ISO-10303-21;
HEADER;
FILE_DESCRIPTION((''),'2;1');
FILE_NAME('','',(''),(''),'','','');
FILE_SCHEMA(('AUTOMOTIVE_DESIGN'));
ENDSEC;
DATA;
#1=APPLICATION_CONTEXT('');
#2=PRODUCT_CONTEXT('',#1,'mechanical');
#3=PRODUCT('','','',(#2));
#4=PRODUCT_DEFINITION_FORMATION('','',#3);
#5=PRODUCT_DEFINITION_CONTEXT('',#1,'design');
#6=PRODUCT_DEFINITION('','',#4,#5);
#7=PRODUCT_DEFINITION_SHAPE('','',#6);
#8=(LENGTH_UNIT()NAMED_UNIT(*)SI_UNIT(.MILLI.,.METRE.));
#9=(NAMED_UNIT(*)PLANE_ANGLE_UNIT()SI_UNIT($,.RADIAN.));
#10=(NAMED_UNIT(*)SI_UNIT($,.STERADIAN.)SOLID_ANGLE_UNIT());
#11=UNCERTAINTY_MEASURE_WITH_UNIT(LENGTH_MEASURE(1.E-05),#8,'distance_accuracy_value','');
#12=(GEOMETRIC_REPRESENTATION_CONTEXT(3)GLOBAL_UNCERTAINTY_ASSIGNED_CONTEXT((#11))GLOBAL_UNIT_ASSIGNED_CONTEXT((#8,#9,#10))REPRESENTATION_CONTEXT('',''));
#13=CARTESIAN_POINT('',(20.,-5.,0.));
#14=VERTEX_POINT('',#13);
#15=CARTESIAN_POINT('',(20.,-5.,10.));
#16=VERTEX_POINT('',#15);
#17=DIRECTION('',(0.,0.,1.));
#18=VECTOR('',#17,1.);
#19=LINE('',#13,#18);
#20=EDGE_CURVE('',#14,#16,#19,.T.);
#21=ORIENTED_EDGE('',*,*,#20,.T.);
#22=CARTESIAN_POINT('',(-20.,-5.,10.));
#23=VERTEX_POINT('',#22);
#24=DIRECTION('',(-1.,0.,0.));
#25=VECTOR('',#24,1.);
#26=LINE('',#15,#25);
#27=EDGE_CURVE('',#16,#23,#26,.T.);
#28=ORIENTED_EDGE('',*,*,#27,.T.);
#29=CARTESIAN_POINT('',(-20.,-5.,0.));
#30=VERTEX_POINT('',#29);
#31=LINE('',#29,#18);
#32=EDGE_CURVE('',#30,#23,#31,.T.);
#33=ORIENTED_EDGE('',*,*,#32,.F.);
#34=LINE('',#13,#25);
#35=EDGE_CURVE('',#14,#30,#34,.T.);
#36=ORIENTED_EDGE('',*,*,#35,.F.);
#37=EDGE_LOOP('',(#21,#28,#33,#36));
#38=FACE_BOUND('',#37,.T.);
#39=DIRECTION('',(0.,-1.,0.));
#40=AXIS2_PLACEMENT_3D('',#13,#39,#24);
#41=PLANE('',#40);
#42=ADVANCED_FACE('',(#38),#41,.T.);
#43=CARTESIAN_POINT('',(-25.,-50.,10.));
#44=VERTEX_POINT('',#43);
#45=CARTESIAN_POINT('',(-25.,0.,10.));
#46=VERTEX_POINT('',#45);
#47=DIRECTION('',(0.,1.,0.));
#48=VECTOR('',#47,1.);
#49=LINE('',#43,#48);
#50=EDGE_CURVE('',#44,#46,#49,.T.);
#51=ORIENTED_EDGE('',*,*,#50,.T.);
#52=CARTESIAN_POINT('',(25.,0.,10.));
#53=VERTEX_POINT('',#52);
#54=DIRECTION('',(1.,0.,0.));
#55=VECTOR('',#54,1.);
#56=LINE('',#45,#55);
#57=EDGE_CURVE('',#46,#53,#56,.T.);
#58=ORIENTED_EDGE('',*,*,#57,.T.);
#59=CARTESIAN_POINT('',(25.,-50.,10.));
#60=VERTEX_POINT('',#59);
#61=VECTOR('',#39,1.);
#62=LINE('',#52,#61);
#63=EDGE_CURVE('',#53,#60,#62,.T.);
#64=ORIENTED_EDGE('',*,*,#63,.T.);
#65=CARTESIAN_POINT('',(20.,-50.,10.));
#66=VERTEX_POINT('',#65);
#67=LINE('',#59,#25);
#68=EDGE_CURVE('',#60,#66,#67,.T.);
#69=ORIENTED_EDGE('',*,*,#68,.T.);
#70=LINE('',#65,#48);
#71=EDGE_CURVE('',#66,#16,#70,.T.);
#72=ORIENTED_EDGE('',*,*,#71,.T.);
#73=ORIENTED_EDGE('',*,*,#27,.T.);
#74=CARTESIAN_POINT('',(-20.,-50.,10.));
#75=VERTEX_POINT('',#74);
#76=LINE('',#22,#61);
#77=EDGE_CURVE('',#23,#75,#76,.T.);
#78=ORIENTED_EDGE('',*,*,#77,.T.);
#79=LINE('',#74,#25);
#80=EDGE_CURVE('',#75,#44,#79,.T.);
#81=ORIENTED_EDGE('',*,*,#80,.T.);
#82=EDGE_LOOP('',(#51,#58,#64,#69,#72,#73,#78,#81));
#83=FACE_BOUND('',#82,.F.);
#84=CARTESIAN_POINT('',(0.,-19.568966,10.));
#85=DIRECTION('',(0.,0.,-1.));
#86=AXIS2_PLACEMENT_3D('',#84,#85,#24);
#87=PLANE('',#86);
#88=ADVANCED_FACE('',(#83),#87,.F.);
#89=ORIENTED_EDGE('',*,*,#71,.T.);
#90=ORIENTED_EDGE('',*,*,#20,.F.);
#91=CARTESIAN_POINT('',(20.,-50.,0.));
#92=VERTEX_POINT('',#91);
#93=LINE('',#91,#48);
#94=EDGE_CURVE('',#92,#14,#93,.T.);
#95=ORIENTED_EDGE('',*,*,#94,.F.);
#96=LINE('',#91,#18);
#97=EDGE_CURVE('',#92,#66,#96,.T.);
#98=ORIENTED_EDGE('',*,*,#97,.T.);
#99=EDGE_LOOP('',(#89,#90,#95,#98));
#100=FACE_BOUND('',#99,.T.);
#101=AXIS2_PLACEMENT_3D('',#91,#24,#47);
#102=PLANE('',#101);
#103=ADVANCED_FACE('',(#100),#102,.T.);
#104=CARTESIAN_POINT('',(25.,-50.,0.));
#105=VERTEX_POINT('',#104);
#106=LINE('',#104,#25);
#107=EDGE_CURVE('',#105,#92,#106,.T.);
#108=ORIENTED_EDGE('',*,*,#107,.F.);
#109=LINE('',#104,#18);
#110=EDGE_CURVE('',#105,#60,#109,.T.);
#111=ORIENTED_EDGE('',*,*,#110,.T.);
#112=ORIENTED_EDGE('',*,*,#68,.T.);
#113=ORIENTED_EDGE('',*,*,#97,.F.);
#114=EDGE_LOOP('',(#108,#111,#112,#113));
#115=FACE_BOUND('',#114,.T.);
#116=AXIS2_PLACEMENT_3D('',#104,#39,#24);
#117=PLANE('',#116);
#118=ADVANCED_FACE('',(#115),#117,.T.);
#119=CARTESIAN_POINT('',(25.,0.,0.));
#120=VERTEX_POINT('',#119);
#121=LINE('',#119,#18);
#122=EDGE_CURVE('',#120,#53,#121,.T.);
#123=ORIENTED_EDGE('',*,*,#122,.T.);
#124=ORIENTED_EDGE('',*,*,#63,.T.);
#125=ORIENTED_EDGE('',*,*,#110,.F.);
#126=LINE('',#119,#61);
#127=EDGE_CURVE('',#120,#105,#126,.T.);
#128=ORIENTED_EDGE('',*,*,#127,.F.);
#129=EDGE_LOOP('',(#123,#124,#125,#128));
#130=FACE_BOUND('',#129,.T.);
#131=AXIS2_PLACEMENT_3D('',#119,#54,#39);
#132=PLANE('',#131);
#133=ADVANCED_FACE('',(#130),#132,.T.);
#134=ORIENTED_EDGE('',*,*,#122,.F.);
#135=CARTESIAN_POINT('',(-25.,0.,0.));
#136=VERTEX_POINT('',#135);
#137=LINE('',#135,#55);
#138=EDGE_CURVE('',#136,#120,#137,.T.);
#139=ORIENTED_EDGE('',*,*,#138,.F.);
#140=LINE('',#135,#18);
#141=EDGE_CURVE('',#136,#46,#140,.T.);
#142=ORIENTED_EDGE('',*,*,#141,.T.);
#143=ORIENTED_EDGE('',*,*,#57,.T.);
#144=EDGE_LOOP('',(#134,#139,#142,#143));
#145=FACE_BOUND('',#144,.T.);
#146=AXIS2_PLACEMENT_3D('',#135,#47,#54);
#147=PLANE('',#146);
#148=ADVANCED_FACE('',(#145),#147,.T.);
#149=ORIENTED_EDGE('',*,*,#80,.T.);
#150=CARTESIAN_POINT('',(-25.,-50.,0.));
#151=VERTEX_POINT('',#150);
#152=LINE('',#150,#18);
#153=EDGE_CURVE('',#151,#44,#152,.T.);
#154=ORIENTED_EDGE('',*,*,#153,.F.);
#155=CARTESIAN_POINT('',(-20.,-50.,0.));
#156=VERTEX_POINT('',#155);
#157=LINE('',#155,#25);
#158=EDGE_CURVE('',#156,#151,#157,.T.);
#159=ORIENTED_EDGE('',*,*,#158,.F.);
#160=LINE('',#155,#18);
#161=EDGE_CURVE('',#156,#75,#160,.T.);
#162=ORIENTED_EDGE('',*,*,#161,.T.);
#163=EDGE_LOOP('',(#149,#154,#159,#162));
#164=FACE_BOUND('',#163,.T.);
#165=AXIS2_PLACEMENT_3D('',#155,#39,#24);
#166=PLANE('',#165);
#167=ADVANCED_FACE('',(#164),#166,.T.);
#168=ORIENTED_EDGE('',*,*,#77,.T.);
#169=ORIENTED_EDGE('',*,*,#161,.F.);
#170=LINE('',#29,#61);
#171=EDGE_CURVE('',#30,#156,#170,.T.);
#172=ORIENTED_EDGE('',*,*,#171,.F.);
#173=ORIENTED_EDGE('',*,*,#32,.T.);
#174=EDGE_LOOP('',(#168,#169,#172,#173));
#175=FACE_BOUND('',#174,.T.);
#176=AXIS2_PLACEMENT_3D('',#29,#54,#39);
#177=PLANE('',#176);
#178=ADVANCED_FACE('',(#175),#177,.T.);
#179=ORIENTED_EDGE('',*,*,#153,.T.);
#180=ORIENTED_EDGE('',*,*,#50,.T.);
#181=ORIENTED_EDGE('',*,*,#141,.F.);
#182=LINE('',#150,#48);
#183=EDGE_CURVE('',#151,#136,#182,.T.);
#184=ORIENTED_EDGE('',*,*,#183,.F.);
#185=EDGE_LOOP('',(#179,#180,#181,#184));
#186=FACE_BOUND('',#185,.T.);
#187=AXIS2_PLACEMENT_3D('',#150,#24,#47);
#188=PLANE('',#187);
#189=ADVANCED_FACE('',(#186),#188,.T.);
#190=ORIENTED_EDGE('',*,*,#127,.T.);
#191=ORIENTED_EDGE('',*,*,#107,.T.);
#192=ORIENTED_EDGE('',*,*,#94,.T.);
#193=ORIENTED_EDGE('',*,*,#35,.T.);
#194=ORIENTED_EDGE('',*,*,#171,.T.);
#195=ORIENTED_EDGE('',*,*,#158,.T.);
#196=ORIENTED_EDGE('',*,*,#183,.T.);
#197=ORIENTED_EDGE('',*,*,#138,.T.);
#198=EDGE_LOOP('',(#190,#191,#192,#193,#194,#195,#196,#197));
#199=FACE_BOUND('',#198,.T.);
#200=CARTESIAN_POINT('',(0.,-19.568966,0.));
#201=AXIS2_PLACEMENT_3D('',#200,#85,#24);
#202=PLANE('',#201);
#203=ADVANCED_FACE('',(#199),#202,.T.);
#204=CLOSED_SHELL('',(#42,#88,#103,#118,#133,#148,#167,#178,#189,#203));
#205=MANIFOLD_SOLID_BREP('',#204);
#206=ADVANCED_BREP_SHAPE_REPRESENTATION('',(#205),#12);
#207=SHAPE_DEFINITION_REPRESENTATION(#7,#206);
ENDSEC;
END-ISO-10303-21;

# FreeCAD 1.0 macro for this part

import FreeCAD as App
import Part
import Sketcher


def add_polygon(sketch, points):
    """Adds a closed chain of lines whose ends are joined by coincident constraints."""
    first, n = sketch.GeometryCount, len(points)
    for a, b in zip(points, points[1:] + points[:1]):
        sketch.addGeometry(Part.LineSegment(App.Vector(*a, 0), App.Vector(*b, 0)), False)
    for i in range(n):
        sketch.addConstraint(Sketcher.Constraint("Coincident", first + i, 2, first + (i + 1) % n, 1))

doc = App.newDocument("Part")
body = doc.addObject("PartDesign::Body", "Body")

sketch1 = body.newObject("Sketcher::SketchObject", "Sketch")
sketch1.AttachmentSupport = (doc.getObject("XY_Plane"), [""])
sketch1.MapMode = "FlatFace"
add_polygon(sketch1, [(25, 0), (-25, 0), (-25, -50), (-20, -50), (-20, -5), (20, -5), (20, -50), (25, -50)])
sketch1.addConstraint([
    Sketcher.Constraint("Horizontal", 0),
    Sketcher.Constraint("Vertical", 1),
    Sketcher.Constraint("Horizontal", 2),
    Sketcher.Constraint("Vertical", 3),
    Sketcher.Constraint("Horizontal", 4),
    Sketcher.Constraint("Vertical", 5),
    Sketcher.Constraint("Horizontal", 6),
    Sketcher.Constraint("Vertical", 7),
    Sketcher.Constraint("Symmetric", 0, 2, 7, 2, -1, 1),
    Sketcher.Constraint("Symmetric", 2, 2, 5, 2, -2),
    Sketcher.Constraint("Equal", 0, 1),
    Sketcher.Constraint("DistanceX", 0, 2, 0, 1, 50.0),
    Sketcher.Constraint("DistanceX", 2, 1, 2, 2, 5.0),
    Sketcher.Constraint("DistanceY", 3, 1, 3, 2, 45.0),
])
pad1 = body.newObject("PartDesign::Pad", "Pad")
pad1.Profile = sketch1
pad1.Length = 10

doc.recompute()
